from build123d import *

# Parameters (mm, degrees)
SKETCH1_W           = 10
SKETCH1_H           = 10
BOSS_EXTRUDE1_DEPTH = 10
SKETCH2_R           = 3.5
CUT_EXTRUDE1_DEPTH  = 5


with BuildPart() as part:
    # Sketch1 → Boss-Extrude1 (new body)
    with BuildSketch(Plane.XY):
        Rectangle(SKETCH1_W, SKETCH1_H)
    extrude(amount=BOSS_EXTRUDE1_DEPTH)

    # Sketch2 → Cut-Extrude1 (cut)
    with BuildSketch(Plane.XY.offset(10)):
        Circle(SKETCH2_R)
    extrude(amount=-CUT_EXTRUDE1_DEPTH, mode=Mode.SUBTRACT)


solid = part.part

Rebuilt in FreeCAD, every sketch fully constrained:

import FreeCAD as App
import Part
import Sketcher
Q = App.Units.Quantity


def add_polygon(sketch, points):
    """Adds a closed chain of lines whose ends are joined by coincident constraints."""
    first, n = sketch.GeometryCount, len(points)
    for a, b in zip(points, points[1:] + points[:1]):
        sketch.addGeometry(Part.LineSegment(App.Vector(*a, 0), App.Vector(*b, 0)), False)
    for i in range(n):
        sketch.addConstraint(Sketcher.Constraint("Coincident", first + i, 2, first + (i + 1) % n, 1))

doc = App.newDocument("Part")
body = doc.addObject("PartDesign::Body", "Body")

# Sketch on XY plane
sketch1 = body.newObject("Sketcher::SketchObject", "Sketch")
sketch1.AttachmentSupport = (doc.getObject("XY_Plane"), [""])
sketch1.MapMode = "FlatFace"
add_polygon(sketch1, [(-5, 5), (-5, -5), (5, -5), (5, 5)])  # lines 0-3
sketch1.addConstraint(Sketcher.Constraint("Vertical", 0))
sketch1.addConstraint(Sketcher.Constraint("Horizontal", 1))
sketch1.addConstraint(Sketcher.Constraint("Vertical", 2))
sketch1.addConstraint(Sketcher.Constraint("Horizontal", 3))
sketch1.addConstraint(Sketcher.Constraint("Symmetric", 0, 2, 2, 2, -1, 1))
sketch1.addConstraint(Sketcher.Constraint("Equal", 3, 0))
sketch1.addConstraint(Sketcher.Constraint("DistanceX", 1, 1, 1, 2, Q("10 mm")))
pad1 = body.newObject("PartDesign::Pad", "Pad")
pad1.Profile = sketch1
pad1.Length = 10

# Sketch on XY plane
sketch2 = body.newObject("Sketcher::SketchObject", "Sketch001")
sketch2.AttachmentSupport = (doc.getObject("XY_Plane"), [""])
sketch2.MapMode = "FlatFace"
sketch2.AttachmentOffset = App.Placement(App.Vector(0, 0, 10), App.Rotation())
sketch2.addGeometry(Part.Circle(App.Vector(0, 0, 0), App.Vector(0, 0, 1), 3.5), False)
sketch2.addConstraint(Sketcher.Constraint("Coincident", 0, 3, -1, 1))
sketch2.addConstraint(Sketcher.Constraint("Diameter", 0, Q("7 mm")))
pocket1 = body.newObject("PartDesign::Pocket", "Pocket")
pocket1.Profile = sketch2
pocket1.Length = 5

doc.recompute()
